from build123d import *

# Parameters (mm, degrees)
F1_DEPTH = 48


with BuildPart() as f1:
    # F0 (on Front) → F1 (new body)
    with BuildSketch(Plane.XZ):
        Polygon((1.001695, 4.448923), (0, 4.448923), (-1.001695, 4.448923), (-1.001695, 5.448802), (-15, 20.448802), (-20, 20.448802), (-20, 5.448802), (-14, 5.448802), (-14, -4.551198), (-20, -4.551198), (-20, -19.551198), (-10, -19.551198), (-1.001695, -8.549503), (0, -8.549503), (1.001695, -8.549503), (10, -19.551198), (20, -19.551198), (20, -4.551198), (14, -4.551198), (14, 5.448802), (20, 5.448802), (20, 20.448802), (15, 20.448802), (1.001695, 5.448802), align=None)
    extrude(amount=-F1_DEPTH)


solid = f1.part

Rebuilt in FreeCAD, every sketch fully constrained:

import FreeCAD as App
import Part
import Sketcher

V = App.Vector
Q = App.Units.Quantity


def add_polygon(sketch, points):
    """Adds a closed chain of lines whose ends are joined by coincident constraints."""
    first, n = sketch.GeometryCount, len(points)
    for a, b in zip(points, points[1:] + points[:1]):
        sketch.addGeometry(Part.LineSegment(App.Vector(*a, 0), App.Vector(*b, 0)), False)
    for i in range(n):
        sketch.addConstraint(Sketcher.Constraint("Coincident", first + i, 2, first + (i + 1) % n, 1))

doc = App.newDocument("Part")
body = doc.addObject("PartDesign::Body", "Body")

# Sketch on XZ plane
sketch1 = body.newObject("Sketcher::SketchObject", "Sketch")
sketch1.AttachmentSupport = (doc.getObject("XZ_Plane"), [""])
sketch1.MapMode = "FlatFace"
add_polygon(sketch1, [(1, 4.4), (-1, 4.4), (-1, 5.4), (-15, 20.4), (-20, 20.4), (-20, 5.4), (-14, 5.4), (-14, -4.6), (-20, -4.6), (-20, -19.6), (-10, -19.6), (-1, -8.5), (1, -8.5), (10, -19.6), (20, -19.6), (20, -4.6), (14, -4.6), (14, 5.4), (20, 5.4), (20, 20.4), (15, 20.4), (1, 5.4)])  # lines 0-21
sketch1.addConstraint([
    Sketcher.Constraint("Horizontal", 0),
    Sketcher.Constraint("Vertical", 1),
    Sketcher.Constraint("Horizontal", 3),
    Sketcher.Constraint("Vertical", 4),
    Sketcher.Constraint("Horizontal", 5),
    Sketcher.Constraint("Vertical", 6),
    Sketcher.Constraint("Horizontal", 7),
    Sketcher.Constraint("Vertical", 8),
    Sketcher.Constraint("Horizontal", 9),
    Sketcher.Constraint("Horizontal", 11),
    Sketcher.Constraint("Horizontal", 13),
    Sketcher.Constraint("Vertical", 14),
    Sketcher.Constraint("Horizontal", 15),
    Sketcher.Constraint("Vertical", 16),
    Sketcher.Constraint("Horizontal", 17),
    Sketcher.Constraint("Vertical", 18),
    Sketcher.Constraint("Horizontal", 19),
    Sketcher.Constraint("Vertical", 21),
    Sketcher.Constraint("Symmetric", 9, 2, 12, 2, -2),
    Sketcher.Constraint("Symmetric", 7, 2, 14, 2, -2),
    Sketcher.Constraint("Symmetric", 5, 2, 16, 2, -2),
    Sketcher.Constraint("Symmetric", 3, 2, 18, 2, -2),
    Sketcher.Constraint("Symmetric", 1, 2, 20, 2, -2),
    Sketcher.Constraint("Horizontal", 1, 2, 4, 2),
    Sketcher.Constraint("Vertical", 4, 2, 7, 2),
    Sketcher.Constraint("Vertical", 1, 2, 10, 2),
    Sketcher.Constraint("Vertical", 11, 2, 20, 2),
    Sketcher.Constraint("Equal", 3, 19),
    Sketcher.Constraint("Equal", 13, 6),
    Sketcher.Constraint("Equal", 4, 8),
    Sketcher.Constraint("DistanceX", 3, 2, 3, 1, Q("5 mm")),
    Sketcher.Constraint("DistanceX", 5, 1, 5, 2, Q("6 mm")),
    Sketcher.Constraint("DistanceX", 9, 1, 9, 2, Q("10 mm")),
    Sketcher.Constraint("DistanceY", 4, 2, 4, 1, Q("15 mm")),
    Sketcher.Constraint("DistanceX", 2, 2, -1, 1, Q("15 mm")),
    Sketcher.Constraint("DistanceX", 0, 2, 0, 1, Q("2.00339 mm")),
    Sketcher.Constraint("DistanceY", 1, 1, 1, 2, Q("0.999879 mm")),
    Sketcher.Constraint("DistanceY", -1, 1, 1, 2, Q("5.448802 mm")),
    Sketcher.Constraint("Distance", 10, Q("14.212909 mm")),
])
pad1 = body.newObject("PartDesign::Pad", "Pad")
pad1.Profile = sketch1
pad1.Length = 48
pad1.Reversed = True

doc.recompute()
